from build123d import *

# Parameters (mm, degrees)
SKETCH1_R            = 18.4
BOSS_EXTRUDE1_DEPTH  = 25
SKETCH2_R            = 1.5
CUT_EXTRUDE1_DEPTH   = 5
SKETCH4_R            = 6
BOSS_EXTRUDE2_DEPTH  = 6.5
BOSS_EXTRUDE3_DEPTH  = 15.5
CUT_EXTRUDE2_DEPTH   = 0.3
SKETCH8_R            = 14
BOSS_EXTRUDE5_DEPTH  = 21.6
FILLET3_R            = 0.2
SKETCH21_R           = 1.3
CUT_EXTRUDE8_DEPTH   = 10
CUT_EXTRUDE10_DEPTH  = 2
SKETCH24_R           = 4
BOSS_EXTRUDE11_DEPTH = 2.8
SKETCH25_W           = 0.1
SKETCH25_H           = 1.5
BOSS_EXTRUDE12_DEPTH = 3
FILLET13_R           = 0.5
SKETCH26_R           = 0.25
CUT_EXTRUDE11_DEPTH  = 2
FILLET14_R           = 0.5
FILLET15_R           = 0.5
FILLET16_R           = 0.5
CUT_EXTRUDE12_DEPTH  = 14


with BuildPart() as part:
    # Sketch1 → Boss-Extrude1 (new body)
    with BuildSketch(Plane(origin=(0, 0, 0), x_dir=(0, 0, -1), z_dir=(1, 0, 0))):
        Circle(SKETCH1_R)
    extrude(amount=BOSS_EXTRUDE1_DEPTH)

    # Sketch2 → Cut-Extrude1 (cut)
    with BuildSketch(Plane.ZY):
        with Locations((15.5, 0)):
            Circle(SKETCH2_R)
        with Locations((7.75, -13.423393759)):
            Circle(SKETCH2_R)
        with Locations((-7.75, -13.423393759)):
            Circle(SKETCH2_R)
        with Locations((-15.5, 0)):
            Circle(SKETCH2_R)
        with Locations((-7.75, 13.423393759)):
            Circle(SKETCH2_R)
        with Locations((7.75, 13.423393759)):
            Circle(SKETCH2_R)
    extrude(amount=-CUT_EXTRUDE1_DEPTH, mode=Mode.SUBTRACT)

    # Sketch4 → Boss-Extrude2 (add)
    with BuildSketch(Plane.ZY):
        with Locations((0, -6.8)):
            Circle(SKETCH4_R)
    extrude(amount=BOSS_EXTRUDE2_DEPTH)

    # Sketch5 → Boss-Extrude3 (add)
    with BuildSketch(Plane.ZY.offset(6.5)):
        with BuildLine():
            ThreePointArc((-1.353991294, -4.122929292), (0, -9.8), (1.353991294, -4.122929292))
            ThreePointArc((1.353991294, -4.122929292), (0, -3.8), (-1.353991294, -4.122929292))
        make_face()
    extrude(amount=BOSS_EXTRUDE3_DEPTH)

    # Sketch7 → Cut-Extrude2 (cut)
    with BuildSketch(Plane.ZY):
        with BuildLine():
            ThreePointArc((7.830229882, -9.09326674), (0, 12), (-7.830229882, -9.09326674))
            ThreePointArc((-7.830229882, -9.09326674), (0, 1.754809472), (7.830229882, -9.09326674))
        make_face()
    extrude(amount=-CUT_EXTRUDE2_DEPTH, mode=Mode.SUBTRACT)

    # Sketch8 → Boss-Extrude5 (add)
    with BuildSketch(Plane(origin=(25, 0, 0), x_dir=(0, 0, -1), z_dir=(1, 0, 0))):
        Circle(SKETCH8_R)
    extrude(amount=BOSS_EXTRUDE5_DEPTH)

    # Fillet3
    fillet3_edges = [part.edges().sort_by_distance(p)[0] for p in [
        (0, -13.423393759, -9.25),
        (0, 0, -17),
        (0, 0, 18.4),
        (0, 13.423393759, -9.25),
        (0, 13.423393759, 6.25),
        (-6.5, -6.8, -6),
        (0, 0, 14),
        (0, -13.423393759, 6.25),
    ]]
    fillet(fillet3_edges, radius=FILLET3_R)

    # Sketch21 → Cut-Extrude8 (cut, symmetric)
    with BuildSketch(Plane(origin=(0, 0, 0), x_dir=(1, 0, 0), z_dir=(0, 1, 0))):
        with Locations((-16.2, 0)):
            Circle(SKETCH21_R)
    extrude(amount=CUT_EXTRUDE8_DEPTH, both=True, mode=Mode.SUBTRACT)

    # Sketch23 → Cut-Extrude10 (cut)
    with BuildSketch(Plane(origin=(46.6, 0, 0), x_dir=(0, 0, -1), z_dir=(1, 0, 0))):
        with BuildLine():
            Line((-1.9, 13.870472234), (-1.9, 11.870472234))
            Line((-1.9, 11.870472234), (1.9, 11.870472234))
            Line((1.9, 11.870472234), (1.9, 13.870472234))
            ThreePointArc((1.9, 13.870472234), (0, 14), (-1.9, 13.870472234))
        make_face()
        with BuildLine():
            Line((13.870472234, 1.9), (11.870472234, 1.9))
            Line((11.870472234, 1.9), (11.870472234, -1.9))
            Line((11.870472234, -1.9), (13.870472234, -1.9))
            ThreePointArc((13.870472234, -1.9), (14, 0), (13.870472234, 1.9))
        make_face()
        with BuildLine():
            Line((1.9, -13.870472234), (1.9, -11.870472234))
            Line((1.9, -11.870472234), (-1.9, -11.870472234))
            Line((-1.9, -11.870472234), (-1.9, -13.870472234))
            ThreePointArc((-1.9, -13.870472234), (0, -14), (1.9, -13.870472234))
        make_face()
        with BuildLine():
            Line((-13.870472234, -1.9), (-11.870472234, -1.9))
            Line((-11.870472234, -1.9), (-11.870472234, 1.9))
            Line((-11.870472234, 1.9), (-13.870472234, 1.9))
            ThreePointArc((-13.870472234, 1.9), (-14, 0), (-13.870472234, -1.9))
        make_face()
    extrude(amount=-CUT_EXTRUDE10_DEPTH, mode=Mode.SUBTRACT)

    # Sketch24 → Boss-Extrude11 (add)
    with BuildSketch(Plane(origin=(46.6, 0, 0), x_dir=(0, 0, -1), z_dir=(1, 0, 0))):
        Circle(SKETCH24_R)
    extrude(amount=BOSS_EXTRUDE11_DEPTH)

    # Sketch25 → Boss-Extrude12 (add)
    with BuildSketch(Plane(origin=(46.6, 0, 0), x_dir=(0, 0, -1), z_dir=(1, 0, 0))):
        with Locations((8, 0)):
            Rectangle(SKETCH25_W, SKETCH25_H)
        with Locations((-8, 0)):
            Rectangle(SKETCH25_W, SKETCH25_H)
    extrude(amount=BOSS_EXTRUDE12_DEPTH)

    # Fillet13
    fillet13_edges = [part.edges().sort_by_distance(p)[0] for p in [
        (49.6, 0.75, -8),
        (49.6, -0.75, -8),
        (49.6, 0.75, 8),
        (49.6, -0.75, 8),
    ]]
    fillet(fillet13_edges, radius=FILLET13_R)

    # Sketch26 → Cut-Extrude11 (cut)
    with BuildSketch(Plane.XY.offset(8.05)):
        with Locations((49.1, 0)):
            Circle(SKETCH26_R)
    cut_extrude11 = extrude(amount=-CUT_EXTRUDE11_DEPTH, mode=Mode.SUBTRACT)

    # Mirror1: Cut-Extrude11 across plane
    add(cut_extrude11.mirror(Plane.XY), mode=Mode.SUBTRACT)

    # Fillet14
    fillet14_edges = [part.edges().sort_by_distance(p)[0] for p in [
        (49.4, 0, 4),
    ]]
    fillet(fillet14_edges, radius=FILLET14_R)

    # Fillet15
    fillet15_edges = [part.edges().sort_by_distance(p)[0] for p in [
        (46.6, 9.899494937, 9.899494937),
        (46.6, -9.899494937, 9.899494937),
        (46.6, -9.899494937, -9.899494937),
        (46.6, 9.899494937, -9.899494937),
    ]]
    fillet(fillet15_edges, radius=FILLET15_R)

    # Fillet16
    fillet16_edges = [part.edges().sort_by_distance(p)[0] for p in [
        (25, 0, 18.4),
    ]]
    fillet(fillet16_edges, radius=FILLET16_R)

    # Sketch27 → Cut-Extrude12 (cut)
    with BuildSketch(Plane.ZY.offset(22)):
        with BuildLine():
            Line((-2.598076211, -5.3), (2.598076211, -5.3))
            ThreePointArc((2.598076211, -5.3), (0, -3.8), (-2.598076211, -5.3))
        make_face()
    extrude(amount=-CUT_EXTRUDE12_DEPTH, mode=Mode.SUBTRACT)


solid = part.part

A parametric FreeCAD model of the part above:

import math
import FreeCAD as App
import Part
import Sketcher

V = App.Vector


def edges_at(feature, points):
    """Names of the edges that pass closest to the given points."""
    edges = feature.Shape.Edges
    near = lambda p: min(range(len(edges)), key=lambda i: edges[i].distToShape(Part.Vertex(*p))[0])
    return sorted({f"Edge{near(p) + 1}" for p in points})

doc = App.newDocument("Part")
body = doc.addObject("PartDesign::Body", "Body")

# Sketch on YZ plane
sketch1 = body.newObject("Sketcher::SketchObject", "Sketch")
sketch1.AttachmentSupport = (doc.getObject("YZ_Plane"), [""])
sketch1.MapMode = "FlatFace"
sketch1.addGeometry(Part.Circle(V(0, 0, 0), V(0, 0, 1), 18), False)
sketch1.addConstraint([
    Sketcher.Constraint("Coincident", 0, 3, -1, 1),
    Sketcher.Constraint("Diameter", 0, 36.8),
])
pad1 = body.newObject("PartDesign::Pad", "Pad")
pad1.Profile = sketch1
pad1.Length = 25

# Sketch on YZ plane
sketch2 = body.newObject("Sketcher::SketchObject", "Sketch001")
sketch2.AttachmentSupport = (doc.getObject("YZ_Plane"), [""])
sketch2.MapMode = "FlatFace"
sketch2.addGeometry([
    Part.Circle(V(0, 15.5, 0), V(0, 0, 1), 1.5),  # 0
    Part.Circle(V(-13.4, 7.8, 0), V(0, 0, 1), 1.5),  # 1
    Part.Circle(V(-13.4, -7.8, 0), V(0, 0, 1), 1.5),  # 2
    Part.Circle(V(0, -15.5, 0), V(0, 0, 1), 1.5),  # 3
    Part.Circle(V(13.4, -7.8, 0), V(0, 0, 1), 1.5),  # 4
    Part.Circle(V(13.4, 7.8, 0), V(0, 0, 1), 1.5),  # 5
], False)
sketch2.addConstraint([
    Sketcher.Constraint("Equal", 0, 1),
    Sketcher.Constraint("Equal", 1, 2),
    Sketcher.Constraint("Equal", 2, 3),
    Sketcher.Constraint("Equal", 3, 4),
    Sketcher.Constraint("Equal", 4, 5),
    Sketcher.Constraint("Symmetric", 0, 3, 3, 3, -1, 1),
    Sketcher.Constraint("Symmetric", 1, 3, 4, 3, -1, 1),
    Sketcher.Constraint("Symmetric", 2, 3, 5, 3, -1, 1),
    Sketcher.Constraint("Symmetric", 2, 3, 4, 3, -2),
    Sketcher.Constraint("PointOnObject", 0, 3, -2),
    Sketcher.Constraint("Diameter", 0, 3.0),
    Sketcher.Constraint("DistanceY", 3, 3, 0, 3, 31.0),
    Sketcher.Constraint("DistanceY", 2, 3, 1, 3, 15.5),
    Sketcher.Constraint("DistanceX", 1, 3, -1, 1, 13.423394),
])
pocket1 = body.newObject("PartDesign::Pocket", "Pocket")
pocket1.Profile = sketch2
pocket1.Length = 5
pocket1.Reversed = True

# Sketch on YZ plane
sketch3 = body.newObject("Sketcher::SketchObject", "Sketch002")
sketch3.AttachmentSupport = (doc.getObject("YZ_Plane"), [""])
sketch3.MapMode = "FlatFace"
sketch3.addGeometry(Part.Circle(V(-7, 0, 0), V(0, 0, 1), 6), False)
sketch3.addConstraint([
    Sketcher.Constraint("PointOnObject", 0, 3, -1),
    Sketcher.Constraint("Diameter", 0, 12.0),
    Sketcher.Constraint("DistanceX", 0, 3, -1, 1, 6.8),
])
pad2 = body.newObject("PartDesign::Pad", "Pad001")
pad2.Profile = sketch3
pad2.Length = 6.5
pad2.Reversed = True

# Sketch on YZ plane
sketch4 = body.newObject("Sketcher::SketchObject", "Sketch003")
sketch4.AttachmentSupport = (doc.getObject("YZ_Plane"), [""])
sketch4.MapMode = "FlatFace"
sketch4.AttachmentOffset = App.Placement(V(0, 0, -6.5), App.Rotation())
sketch4.addGeometry([
    Part.ArcOfCircle(Part.Circle(V(-6.8, 0, 0), V(0, 0, 1), 3), math.radians(27), math.radians(333)),
    Part.ArcOfCircle(Part.Circle(V(-6.8, 0, 0), V(0, 0, 1), 3), math.radians(-27), math.radians(27)),
], False)
sketch4.addConstraint([
    Sketcher.Constraint("Tangent", 0, 1, 1, 2),
    Sketcher.Constraint("Coincident", 1, 1, 0, 2),
    Sketcher.Constraint("Symmetric", 0, 1, 1, 1, -1),
    Sketcher.Constraint("Radius", 0, 3.0),
    Sketcher.Constraint("DistanceX", 0, 3, -1, 1, 6.8),
    Sketcher.Constraint("DistanceX", 0, 1, -1, 1, 4.122929),
])
pad3 = body.newObject("PartDesign::Pad", "Pad002")
pad3.Profile = sketch4
pad3.Length = 15.5
pad3.Reversed = True

# Sketch on YZ plane
sketch5 = body.newObject("Sketcher::SketchObject", "Sketch004")
sketch5.AttachmentSupport = (doc.getObject("YZ_Plane"), [""])
sketch5.MapMode = "FlatFace"
sketch5.addGeometry([
    Part.ArcOfCircle(Part.Circle(V(0, 0, 0), V(0, 0, 1), 12), math.radians(-139), math.radians(139)),
    Part.ArcOfCircle(Part.Circle(V(-6, 0, 0), V(0, 0, 1), 8), math.radians(-108), math.radians(108)),
], False)
sketch5.addConstraint([
    Sketcher.Constraint("Coincident", 0, 1, 1, 1),
    Sketcher.Constraint("Coincident", 1, 2, 0, 2),
    Sketcher.Constraint("Coincident", 0, 3, -1, 1),
    Sketcher.Constraint("PointOnObject", 1, 3, -1),
    Sketcher.Constraint("Radius", 0, 12.0),
    Sketcher.Constraint("Radius", 1, 8.25),
    Sketcher.Constraint("DistanceX", 1, 3, -1, 1, 6.495191),
])
pocket2 = body.newObject("PartDesign::Pocket", "Pocket001")
pocket2.Profile = sketch5
pocket2.Length = 0.3
pocket2.Reversed = True

# Sketch on YZ plane
sketch6 = body.newObject("Sketcher::SketchObject", "Sketch005")
sketch6.AttachmentSupport = (doc.getObject("YZ_Plane"), [""])
sketch6.MapMode = "FlatFace"
sketch6.AttachmentOffset = App.Placement(V(0, 0, 25), App.Rotation())
sketch6.addGeometry(Part.Circle(V(0, 0, 0), V(0, 0, 1), 14), False)
sketch6.addConstraint([
    Sketcher.Constraint("Coincident", 0, 3, -1, 1),
    Sketcher.Constraint("Diameter", 0, 28.0),
])
pad4 = body.newObject("PartDesign::Pad", "Pad003")
pad4.Profile = sketch6
pad4.Length = 21.6
doc.recompute()

fillet = body.newObject("PartDesign::Fillet", "Fillet")
fillet.Base = (pad4, edges_at(pad4, [
    (0, -13.423, -9.25),
    (0, 0, -17),
    (0, 0, 18.4),
    (0, 13.423, -9.25),
    (0, 13.423, 6.25),
    (-6.5, -6.8, -6),
    (0, 0, 14),
    (0, -13.423, 6.25),
]))
fillet.Radius = 0.2

# Sketch on XZ plane
sketch7 = body.newObject("Sketcher::SketchObject", "Sketch006")
sketch7.AttachmentSupport = (doc.getObject("XZ_Plane"), [""])
sketch7.MapMode = "FlatFace"
sketch7.addGeometry(Part.Circle(V(-16.2, 0, 0), V(0, 0, 1), 1.3), False)
sketch7.addConstraint([
    Sketcher.Constraint("PointOnObject", 0, 3, -1),
    Sketcher.Constraint("Diameter", 0, 2.6),
    Sketcher.Constraint("DistanceX", 0, 3, -1, 1, 16.2),
])
pocket3 = body.newObject("PartDesign::Pocket", "Pocket002")
pocket3.Profile = sketch7
pocket3.Length = 20
pocket3.Midplane = True

# Sketch on YZ plane
sketch8 = body.newObject("Sketcher::SketchObject", "Sketch007")
sketch8.AttachmentSupport = (doc.getObject("YZ_Plane"), [""])
sketch8.MapMode = "FlatFace"
sketch8.AttachmentOffset = App.Placement(V(0, 0, 46.6), App.Rotation())
sketch8.addGeometry([
    Part.LineSegment(V(13.9, 1.9, 0), V(11.9, 1.9, 0)),  # 0
    Part.LineSegment(V(11.9, 1.9, 0), V(11.9, -1.9, 0)),  # 1
    Part.LineSegment(V(11.9, -1.9, 0), V(13.9, -1.9, 0)),  # 2
    Part.ArcOfCircle(Part.Circle(V(0, 0, 0), V(0, 0, 1), 14), math.radians(-7.8), math.radians(7.8)),  # 3
    Part.LineSegment(V(1.9, -13.9, 0), V(1.9, -11.9, 0)),  # 4
    Part.LineSegment(V(1.9, -11.9, 0), V(-1.9, -11.9, 0)),  # 5
    Part.LineSegment(V(-1.9, -11.9, 0), V(-1.9, -13.9, 0)),  # 6
    Part.ArcOfCircle(Part.Circle(V(0, 0, 0), V(0, 0, 1), 14), math.radians(-97.8), math.radians(-82.2)),  # 7
    Part.LineSegment(V(-13.9, -1.9, 0), V(-11.9, -1.9, 0)),  # 8
    Part.LineSegment(V(-11.9, -1.9, 0), V(-11.9, 1.9, 0)),  # 9
    Part.LineSegment(V(-11.9, 1.9, 0), V(-13.9, 1.9, 0)),  # 10
    Part.ArcOfCircle(Part.Circle(V(0, 0, 0), V(0, 0, 1), 14), math.radians(172.2), math.radians(187.8)),  # 11
    Part.LineSegment(V(-1.9, 13.9, 0), V(-1.9, 11.9, 0)),  # 12
    Part.LineSegment(V(-1.9, 11.9, 0), V(1.9, 11.9, 0)),  # 13
    Part.LineSegment(V(1.9, 11.9, 0), V(1.9, 13.9, 0)),  # 14
    Part.ArcOfCircle(Part.Circle(V(0, 0, 0), V(0, 0, 1), 14), math.radians(82.2), math.radians(97.8)),  # 15
], False)
sketch8.addConstraint([
    Sketcher.Constraint("Coincident", 0, 2, 1, 1),
    Sketcher.Constraint("Coincident", 1, 2, 2, 1),
    Sketcher.Constraint("Coincident", 2, 2, 3, 1),
    Sketcher.Constraint("Coincident", 3, 2, 0, 1),
    Sketcher.Constraint("Coincident", 4, 2, 5, 1),
    Sketcher.Constraint("Coincident", 5, 2, 6, 1),
    Sketcher.Constraint("Coincident", 6, 2, 7, 1),
    Sketcher.Constraint("Coincident", 7, 2, 4, 1),
    Sketcher.Constraint("Coincident", 8, 2, 9, 1),
    Sketcher.Constraint("Coincident", 9, 2, 10, 1),
    Sketcher.Constraint("Coincident", 10, 2, 11, 1),
    Sketcher.Constraint("Coincident", 11, 2, 8, 1),
    Sketcher.Constraint("Coincident", 12, 2, 13, 1),
    Sketcher.Constraint("Coincident", 13, 2, 14, 1),
    Sketcher.Constraint("Coincident", 14, 2, 15, 1),
    Sketcher.Constraint("Coincident", 15, 2, 12, 1),
    Sketcher.Constraint("Horizontal", 0),
    Sketcher.Constraint("Vertical", 1),
    Sketcher.Constraint("Horizontal", 2),
    Sketcher.Constraint("Vertical", 4),
    Sketcher.Constraint("Horizontal", 5),
    Sketcher.Constraint("Vertical", 6),
    Sketcher.Constraint("Horizontal", 8),
    Sketcher.Constraint("Vertical", 9),
    Sketcher.Constraint("Horizontal", 10),
    Sketcher.Constraint("Vertical", 12),
    Sketcher.Constraint("Horizontal", 13),
    Sketcher.Constraint("Vertical", 14),
    Sketcher.Constraint("Coincident", 3, 3, -1, 1),
    Sketcher.Constraint("Coincident", 7, 3, -1, 1),
    Sketcher.Constraint("Coincident", 11, 3, -1, 1),
    Sketcher.Constraint("Coincident", 15, 3, -1, 1),
    Sketcher.Constraint("Equal", 3, 7),
    Sketcher.Constraint("Equal", 7, 11),
    Sketcher.Constraint("Equal", 11, 15),
    Sketcher.Constraint("Symmetric", 0, 2, 8, 2, -1, 1),
    Sketcher.Constraint("Symmetric", 4, 2, 12, 2, -1, 1),
    Sketcher.Constraint("Horizontal", 6, 2, 7, 2),
    Sketcher.Constraint("Horizontal", 2, 2, 8, 2),
    Sketcher.Constraint("Horizontal", 3, 2, 9, 2),
    Sketcher.Constraint("Horizontal", 14, 2, 15, 2),
    Sketcher.Constraint("Equal", 13, 1),
    Sketcher.Constraint("Equal", 10, 4),
    Sketcher.Constraint("Radius", 3, 14.0),
    Sketcher.Constraint("DistanceX", 0, 2, 0, 1, 2.0),
    Sketcher.Constraint("DistanceX", 5, 2, 5, 1, 3.8),
])
pocket4 = body.newObject("PartDesign::Pocket", "Pocket003")
pocket4.Profile = sketch8
pocket4.Length = 2

# Sketch on YZ plane
sketch9 = body.newObject("Sketcher::SketchObject", "Sketch008")
sketch9.AttachmentSupport = (doc.getObject("YZ_Plane"), [""])
sketch9.MapMode = "FlatFace"
sketch9.AttachmentOffset = App.Placement(V(0, 0, 46.6), App.Rotation())
sketch9.addGeometry(Part.Circle(V(0, 0, 0), V(0, 0, 1), 4), False)
sketch9.addConstraint([
    Sketcher.Constraint("Coincident", 0, 3, -1, 1),
    Sketcher.Constraint("Diameter", 0, 8.0),
])
pad5 = body.newObject("PartDesign::Pad", "Pad004")
pad5.Profile = sketch9
pad5.Length = 2.8

# Sketch on YZ plane
sketch10 = body.newObject("Sketcher::SketchObject", "Sketch009")
sketch10.AttachmentSupport = (doc.getObject("YZ_Plane"), [""])
sketch10.MapMode = "FlatFace"
sketch10.AttachmentOffset = App.Placement(V(0, 0, 46.6), App.Rotation())
sketch10.addGeometry([
    Part.LineSegment(V(0.75, -7.95, 0), V(-0.75, -7.95, 0)),  # 0
    Part.LineSegment(V(-0.75, -7.95, 0), V(-0.75, -8.05, 0)),  # 1
    Part.LineSegment(V(-0.75, -8.05, 0), V(0.75, -8.05, 0)),  # 2
    Part.LineSegment(V(0.75, -8.05, 0), V(0.75, -7.95, 0)),  # 3
    Part.LineSegment(V(0.75, 8.05, 0), V(-0.75, 8.05, 0)),  # 4
    Part.LineSegment(V(-0.75, 8.05, 0), V(-0.75, 7.95, 0)),  # 5
    Part.LineSegment(V(-0.75, 7.95, 0), V(0.75, 7.95, 0)),  # 6
    Part.LineSegment(V(0.75, 7.95, 0), V(0.75, 8.05, 0)),  # 7
], False)
sketch10.addConstraint([
    Sketcher.Constraint("Coincident", 0, 2, 1, 1),
    Sketcher.Constraint("Coincident", 1, 2, 2, 1),
    Sketcher.Constraint("Coincident", 2, 2, 3, 1),
    Sketcher.Constraint("Coincident", 3, 2, 0, 1),
    Sketcher.Constraint("Coincident", 4, 2, 5, 1),
    Sketcher.Constraint("Coincident", 5, 2, 6, 1),
    Sketcher.Constraint("Coincident", 6, 2, 7, 1),
    Sketcher.Constraint("Coincident", 7, 2, 4, 1),
    Sketcher.Constraint("Horizontal", 0),
    Sketcher.Constraint("Vertical", 1),
    Sketcher.Constraint("Horizontal", 2),
    Sketcher.Constraint("Vertical", 3),
    Sketcher.Constraint("Horizontal", 4),
    Sketcher.Constraint("Vertical", 5),
    Sketcher.Constraint("Horizontal", 6),
    Sketcher.Constraint("Vertical", 7),
    Sketcher.Constraint("Symmetric", 2, 2, 4, 2, -1, 1),
    Sketcher.Constraint("Symmetric", 0, 2, 6, 2, -1, 1),
    Sketcher.Constraint("Vertical", 1, 2, 4, 2),
    Sketcher.Constraint("DistanceX", 0, 2, 0, 1, 1.5),
    Sketcher.Constraint("DistanceY", 1, 2, 1, 1, 0.1),
    Sketcher.Constraint("DistanceY", 0, 2, 4, 2, 16.0),
])
pad6 = body.newObject("PartDesign::Pad", "Pad005")
pad6.Profile = sketch10
pad6.Length = 3
doc.recompute()

fillet2 = body.newObject("PartDesign::Fillet", "Fillet001")
fillet2.Base = (pad6, edges_at(pad6, [
    (49.6, 0.75, -8),
    (49.6, -0.75, -8),
    (49.6, 0.75, 8),
    (49.6, -0.75, 8),
]))
fillet2.Radius = 0.5

# Sketch on XY plane
sketch11 = body.newObject("Sketcher::SketchObject", "Sketch010")
sketch11.AttachmentSupport = (doc.getObject("XY_Plane"), [""])
sketch11.MapMode = "FlatFace"
sketch11.AttachmentOffset = App.Placement(V(0, 0, 8.05), App.Rotation())
sketch11.addGeometry(Part.Circle(V(49.1, 0, 0), V(0, 0, 1), 0.25), False)
sketch11.addConstraint([
    Sketcher.Constraint("PointOnObject", 0, 3, -1),
    Sketcher.Constraint("Diameter", 0, 0.5),
    Sketcher.Constraint("DistanceX", -1, 1, 0, 3, 49.1),
])
pocket5 = body.newObject("PartDesign::Pocket", "Pocket004")
pocket5.Profile = sketch11
pocket5.Length = 2
doc.recompute()

mirrored = body.newObject("PartDesign::Mirrored", "Mirrored")
mirrored.Originals = [pocket5]
mirrored.MirrorPlane = (doc.getObject("XY_Plane"), [""])
body.Tip = mirrored
doc.recompute()

fillet3 = body.newObject("PartDesign::Fillet", "Fillet002")
fillet3.Base = (mirrored, edges_at(mirrored, [(49.4, 0, 4)]))
fillet3.Radius = 0.5
doc.recompute()

fillet4 = body.newObject("PartDesign::Fillet", "Fillet003")
fillet4.Base = (fillet3, edges_at(fillet3, [
    (46.6, 9.899, 9.899),
    (46.6, -9.899, 9.899),
    (46.6, -9.899, -9.899),
    (46.6, 9.899, -9.899),
]))
fillet4.Radius = 0.5
doc.recompute()

fillet5 = body.newObject("PartDesign::Fillet", "Fillet004")
fillet5.Base = (fillet4, edges_at(fillet4, [(25, 0, 18.4)]))
fillet5.Radius = 0.5

# Sketch on YZ plane
sketch12 = body.newObject("Sketcher::SketchObject", "Sketch011")
sketch12.AttachmentSupport = (doc.getObject("YZ_Plane"), [""])
sketch12.MapMode = "FlatFace"
sketch12.AttachmentOffset = App.Placement(V(0, 0, -22), App.Rotation())
sketch12.addGeometry([
    Part.LineSegment(V(-5.3, -2.6, 0), V(-5.3, 2.6, 0)),
    Part.ArcOfCircle(Part.Circle(V(-6.8, 0, 0), V(0, 0, 1), 3), math.radians(-60), math.radians(60)),
], False)
sketch12.addConstraint([
    Sketcher.Constraint("Coincident", 0, 1, 1, 1),
    Sketcher.Constraint("Coincident", 1, 2, 0, 2),
    Sketcher.Constraint("Vertical", 0),
    Sketcher.Constraint("PointOnObject", 1, 3, -1),
    Sketcher.Constraint("Radius", 1, 3.0),
    Sketcher.Constraint("DistanceX", 1, 3, -1, 1, 6.8),
    Sketcher.Constraint("DistanceX", 0, 1, -1, 1, 5.3),
])
pocket6 = body.newObject("PartDesign::Pocket", "Pocket005")
pocket6.Profile = sketch12
pocket6.Length = 14
pocket6.Reversed = True

doc.recompute()
